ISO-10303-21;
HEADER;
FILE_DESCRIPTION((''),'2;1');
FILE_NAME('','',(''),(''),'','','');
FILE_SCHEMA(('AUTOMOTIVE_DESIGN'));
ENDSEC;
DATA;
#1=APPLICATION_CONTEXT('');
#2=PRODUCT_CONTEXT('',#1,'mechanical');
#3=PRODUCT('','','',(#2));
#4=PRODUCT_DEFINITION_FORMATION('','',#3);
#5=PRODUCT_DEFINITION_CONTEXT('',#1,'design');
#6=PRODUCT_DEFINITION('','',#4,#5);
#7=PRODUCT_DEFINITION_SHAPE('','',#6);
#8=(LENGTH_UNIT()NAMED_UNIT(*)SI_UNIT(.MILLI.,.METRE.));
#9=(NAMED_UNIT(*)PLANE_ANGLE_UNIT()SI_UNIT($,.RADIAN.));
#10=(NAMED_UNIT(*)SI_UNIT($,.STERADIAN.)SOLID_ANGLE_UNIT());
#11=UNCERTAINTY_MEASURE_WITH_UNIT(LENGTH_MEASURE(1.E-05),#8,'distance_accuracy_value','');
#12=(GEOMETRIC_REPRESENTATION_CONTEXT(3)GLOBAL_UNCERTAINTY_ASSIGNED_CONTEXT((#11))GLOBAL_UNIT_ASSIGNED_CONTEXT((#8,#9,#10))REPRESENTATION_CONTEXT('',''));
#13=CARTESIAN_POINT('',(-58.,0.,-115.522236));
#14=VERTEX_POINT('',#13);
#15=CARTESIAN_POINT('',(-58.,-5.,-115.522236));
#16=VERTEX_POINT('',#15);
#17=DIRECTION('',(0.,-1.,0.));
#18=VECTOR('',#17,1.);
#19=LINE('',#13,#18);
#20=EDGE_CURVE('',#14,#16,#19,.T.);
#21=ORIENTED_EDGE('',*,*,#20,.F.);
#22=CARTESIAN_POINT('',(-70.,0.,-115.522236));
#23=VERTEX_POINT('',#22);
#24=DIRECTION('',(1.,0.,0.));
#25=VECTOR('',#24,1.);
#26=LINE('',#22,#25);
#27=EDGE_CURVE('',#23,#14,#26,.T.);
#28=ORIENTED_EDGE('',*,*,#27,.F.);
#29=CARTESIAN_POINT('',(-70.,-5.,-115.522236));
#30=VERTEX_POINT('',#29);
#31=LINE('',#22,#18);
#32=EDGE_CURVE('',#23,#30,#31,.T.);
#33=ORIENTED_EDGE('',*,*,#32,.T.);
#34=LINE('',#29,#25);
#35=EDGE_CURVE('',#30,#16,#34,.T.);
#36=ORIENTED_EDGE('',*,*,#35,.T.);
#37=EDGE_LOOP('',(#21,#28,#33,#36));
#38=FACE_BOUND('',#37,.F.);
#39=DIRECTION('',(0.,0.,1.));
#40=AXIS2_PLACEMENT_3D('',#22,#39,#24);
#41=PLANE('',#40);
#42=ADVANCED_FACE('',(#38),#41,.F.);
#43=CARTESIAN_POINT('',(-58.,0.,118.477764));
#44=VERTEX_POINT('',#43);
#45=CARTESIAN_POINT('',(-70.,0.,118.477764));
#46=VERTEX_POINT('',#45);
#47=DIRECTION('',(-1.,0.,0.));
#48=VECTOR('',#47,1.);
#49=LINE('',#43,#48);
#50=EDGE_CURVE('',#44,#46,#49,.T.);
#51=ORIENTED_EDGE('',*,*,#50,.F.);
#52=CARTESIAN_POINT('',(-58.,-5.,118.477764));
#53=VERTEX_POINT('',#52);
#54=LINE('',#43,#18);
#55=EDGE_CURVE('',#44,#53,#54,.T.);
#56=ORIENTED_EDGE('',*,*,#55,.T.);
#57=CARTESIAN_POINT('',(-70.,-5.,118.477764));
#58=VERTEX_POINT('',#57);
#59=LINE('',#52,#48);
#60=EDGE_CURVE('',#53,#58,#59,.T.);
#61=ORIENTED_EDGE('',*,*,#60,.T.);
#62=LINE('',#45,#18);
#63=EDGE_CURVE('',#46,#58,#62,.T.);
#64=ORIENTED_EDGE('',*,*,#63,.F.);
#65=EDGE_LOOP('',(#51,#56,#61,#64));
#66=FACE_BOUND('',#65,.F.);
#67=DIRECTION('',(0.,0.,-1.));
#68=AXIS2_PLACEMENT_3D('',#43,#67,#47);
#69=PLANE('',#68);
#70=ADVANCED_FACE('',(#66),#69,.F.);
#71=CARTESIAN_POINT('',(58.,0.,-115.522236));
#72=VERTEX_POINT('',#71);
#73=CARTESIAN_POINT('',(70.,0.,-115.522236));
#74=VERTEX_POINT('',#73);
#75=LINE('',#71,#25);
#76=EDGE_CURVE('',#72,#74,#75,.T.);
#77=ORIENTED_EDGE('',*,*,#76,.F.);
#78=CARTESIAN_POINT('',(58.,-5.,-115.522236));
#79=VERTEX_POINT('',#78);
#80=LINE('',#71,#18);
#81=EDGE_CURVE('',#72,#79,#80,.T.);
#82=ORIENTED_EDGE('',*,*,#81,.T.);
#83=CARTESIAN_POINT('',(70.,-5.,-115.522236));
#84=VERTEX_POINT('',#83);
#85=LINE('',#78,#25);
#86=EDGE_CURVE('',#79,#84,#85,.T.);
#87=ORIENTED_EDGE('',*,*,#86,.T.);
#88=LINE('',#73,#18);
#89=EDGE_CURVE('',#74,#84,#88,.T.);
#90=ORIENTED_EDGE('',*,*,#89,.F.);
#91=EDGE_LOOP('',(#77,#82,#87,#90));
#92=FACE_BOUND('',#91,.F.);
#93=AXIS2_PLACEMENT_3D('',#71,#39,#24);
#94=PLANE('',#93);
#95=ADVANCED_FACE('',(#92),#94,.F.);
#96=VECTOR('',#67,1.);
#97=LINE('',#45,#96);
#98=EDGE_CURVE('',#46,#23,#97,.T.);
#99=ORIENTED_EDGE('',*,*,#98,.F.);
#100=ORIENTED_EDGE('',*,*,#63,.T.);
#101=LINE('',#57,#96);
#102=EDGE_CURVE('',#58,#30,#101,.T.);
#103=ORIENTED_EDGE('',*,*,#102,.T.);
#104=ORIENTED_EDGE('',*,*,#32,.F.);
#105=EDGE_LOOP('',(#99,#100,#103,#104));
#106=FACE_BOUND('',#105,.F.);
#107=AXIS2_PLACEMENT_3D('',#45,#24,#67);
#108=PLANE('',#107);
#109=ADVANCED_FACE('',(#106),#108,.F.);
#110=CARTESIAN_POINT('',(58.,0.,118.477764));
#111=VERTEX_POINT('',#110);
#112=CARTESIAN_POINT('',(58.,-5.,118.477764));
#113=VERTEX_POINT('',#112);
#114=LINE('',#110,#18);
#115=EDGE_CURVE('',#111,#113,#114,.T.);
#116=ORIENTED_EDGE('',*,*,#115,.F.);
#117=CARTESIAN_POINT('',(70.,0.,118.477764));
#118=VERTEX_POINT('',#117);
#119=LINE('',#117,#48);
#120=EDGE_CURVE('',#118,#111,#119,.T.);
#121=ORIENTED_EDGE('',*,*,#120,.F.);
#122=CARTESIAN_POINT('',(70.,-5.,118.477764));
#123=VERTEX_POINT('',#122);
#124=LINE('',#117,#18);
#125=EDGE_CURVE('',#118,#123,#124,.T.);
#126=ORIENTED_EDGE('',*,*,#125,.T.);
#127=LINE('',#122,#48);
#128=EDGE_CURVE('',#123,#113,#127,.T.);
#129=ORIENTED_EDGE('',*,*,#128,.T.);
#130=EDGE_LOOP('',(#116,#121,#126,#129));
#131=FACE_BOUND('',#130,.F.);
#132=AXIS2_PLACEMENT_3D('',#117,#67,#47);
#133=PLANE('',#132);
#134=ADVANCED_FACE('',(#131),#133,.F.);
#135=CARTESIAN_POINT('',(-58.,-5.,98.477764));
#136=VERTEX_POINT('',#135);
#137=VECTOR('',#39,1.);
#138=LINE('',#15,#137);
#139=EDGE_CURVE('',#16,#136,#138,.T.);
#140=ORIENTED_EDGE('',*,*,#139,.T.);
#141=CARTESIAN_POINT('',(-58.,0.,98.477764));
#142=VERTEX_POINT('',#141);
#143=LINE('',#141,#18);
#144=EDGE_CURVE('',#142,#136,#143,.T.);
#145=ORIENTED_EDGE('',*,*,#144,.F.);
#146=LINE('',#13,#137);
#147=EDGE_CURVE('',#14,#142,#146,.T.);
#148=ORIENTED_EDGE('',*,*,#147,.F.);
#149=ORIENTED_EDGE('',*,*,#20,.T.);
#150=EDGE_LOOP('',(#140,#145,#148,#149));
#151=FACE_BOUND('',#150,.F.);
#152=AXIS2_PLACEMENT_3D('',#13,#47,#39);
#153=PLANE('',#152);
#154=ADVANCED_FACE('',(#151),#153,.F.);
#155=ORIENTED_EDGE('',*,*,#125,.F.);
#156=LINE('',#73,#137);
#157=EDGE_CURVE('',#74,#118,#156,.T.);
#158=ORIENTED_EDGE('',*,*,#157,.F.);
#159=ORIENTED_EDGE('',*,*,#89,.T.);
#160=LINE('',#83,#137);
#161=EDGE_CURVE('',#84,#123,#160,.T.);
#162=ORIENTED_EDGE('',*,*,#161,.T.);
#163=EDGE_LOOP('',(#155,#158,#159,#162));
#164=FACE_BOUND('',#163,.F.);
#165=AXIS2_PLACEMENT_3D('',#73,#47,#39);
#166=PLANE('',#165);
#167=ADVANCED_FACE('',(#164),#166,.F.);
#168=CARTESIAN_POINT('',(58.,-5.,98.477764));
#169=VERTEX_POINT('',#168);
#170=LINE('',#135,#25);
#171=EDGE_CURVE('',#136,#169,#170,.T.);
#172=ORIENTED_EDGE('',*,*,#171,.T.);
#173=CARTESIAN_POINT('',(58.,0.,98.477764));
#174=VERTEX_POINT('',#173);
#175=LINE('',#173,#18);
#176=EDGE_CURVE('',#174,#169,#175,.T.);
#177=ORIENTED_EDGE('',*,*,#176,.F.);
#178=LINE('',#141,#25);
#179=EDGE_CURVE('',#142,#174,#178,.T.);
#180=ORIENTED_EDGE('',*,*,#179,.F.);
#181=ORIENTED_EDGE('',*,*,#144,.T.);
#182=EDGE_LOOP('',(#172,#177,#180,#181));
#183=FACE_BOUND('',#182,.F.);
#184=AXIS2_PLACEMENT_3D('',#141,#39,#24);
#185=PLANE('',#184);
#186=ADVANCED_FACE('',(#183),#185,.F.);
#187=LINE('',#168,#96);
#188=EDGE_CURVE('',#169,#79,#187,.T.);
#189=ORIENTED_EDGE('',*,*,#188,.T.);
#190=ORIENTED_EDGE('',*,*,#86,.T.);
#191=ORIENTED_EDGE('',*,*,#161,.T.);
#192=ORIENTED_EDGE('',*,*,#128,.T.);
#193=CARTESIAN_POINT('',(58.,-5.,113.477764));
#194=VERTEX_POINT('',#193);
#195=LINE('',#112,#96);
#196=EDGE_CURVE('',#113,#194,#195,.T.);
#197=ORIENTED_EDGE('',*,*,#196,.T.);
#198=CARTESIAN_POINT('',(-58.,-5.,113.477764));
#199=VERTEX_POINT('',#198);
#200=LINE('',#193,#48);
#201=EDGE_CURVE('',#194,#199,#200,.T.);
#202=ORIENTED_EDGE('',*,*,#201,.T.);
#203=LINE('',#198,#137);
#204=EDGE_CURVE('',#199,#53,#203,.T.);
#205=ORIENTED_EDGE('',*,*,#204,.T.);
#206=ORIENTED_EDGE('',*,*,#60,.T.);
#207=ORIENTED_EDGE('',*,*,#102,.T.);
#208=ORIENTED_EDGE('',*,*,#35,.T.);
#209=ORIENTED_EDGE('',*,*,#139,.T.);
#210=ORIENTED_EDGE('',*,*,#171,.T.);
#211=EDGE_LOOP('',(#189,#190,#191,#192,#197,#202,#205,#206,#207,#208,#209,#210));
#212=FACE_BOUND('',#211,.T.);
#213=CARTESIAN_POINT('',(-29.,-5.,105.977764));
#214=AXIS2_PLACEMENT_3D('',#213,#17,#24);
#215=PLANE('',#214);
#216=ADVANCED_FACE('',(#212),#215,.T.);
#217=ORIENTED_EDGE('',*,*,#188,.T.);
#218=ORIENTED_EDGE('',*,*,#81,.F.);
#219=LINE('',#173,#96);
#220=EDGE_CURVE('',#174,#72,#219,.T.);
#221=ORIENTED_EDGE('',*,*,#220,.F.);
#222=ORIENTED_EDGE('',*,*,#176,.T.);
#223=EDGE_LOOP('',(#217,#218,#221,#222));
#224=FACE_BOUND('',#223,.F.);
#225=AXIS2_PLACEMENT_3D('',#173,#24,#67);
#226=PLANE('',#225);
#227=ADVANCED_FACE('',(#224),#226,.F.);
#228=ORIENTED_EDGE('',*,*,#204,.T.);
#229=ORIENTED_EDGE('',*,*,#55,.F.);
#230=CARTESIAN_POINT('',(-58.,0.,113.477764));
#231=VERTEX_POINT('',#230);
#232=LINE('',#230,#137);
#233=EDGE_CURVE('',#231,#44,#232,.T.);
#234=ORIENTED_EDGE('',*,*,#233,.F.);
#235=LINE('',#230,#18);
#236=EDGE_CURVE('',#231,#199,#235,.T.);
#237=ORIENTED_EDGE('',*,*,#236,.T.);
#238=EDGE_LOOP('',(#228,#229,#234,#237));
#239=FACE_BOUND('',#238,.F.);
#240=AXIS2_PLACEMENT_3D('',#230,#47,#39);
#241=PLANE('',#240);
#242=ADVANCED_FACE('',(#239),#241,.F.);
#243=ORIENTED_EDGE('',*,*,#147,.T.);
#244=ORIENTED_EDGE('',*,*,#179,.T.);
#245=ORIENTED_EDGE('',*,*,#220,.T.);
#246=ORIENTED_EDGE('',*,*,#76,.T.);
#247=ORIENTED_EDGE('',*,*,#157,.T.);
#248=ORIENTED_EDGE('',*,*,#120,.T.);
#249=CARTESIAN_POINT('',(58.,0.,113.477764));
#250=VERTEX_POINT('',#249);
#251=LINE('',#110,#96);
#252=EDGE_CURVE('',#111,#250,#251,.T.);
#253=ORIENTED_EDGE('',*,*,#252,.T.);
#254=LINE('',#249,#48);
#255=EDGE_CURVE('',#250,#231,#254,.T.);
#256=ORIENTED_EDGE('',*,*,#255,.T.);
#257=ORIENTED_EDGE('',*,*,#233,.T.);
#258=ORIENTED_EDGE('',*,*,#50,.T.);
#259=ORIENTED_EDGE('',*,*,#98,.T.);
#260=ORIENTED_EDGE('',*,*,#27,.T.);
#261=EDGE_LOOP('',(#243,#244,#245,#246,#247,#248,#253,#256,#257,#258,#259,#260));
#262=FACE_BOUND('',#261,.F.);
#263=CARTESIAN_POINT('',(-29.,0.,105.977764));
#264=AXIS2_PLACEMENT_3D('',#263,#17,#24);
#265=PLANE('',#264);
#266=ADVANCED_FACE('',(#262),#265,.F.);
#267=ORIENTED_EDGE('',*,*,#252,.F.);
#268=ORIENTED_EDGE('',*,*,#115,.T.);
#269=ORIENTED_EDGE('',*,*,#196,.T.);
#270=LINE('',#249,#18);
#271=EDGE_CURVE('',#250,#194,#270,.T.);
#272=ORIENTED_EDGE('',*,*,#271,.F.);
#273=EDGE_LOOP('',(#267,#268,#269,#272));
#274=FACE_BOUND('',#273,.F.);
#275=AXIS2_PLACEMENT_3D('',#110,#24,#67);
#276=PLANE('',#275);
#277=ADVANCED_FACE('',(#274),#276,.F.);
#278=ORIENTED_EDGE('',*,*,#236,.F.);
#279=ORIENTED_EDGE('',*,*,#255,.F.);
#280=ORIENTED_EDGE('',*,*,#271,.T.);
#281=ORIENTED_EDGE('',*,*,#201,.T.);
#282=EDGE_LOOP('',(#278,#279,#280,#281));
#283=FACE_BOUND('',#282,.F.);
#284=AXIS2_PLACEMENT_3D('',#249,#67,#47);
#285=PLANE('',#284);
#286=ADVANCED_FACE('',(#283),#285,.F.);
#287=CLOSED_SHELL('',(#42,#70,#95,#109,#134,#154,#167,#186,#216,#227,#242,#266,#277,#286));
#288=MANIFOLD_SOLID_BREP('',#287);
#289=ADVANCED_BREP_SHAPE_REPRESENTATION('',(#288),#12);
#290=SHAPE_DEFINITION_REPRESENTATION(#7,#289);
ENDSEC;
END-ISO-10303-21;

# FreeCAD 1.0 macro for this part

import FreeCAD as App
import Part
import Sketcher

V = App.Vector
Q = App.Units.Quantity

doc = App.newDocument("Part")
params = doc.addObject("Spreadsheet::Sheet", "Params")
for row, (alias, value) in enumerate([
    ("sketch1_width", "116 mm"),
    ("sketch1_width2", "12 mm"),
    ("sketch1_height", "214 mm"),
    ("sketch1_height2", "234 mm"),
    ("sketch1_height3", "5 mm"),
    ("pad1_length", "5 mm"),
], start=1):
    params.set(f"A{row}", alias)
    params.set(f"B{row}", "=" + value)
    params.setAlias(f"B{row}", alias)

body = doc.addObject("PartDesign::Body", "Body")

sketch1 = body.newObject("Sketcher::SketchObject", "Sketch")
sketch1.AttachmentSupport = (doc.getObject("XZ_Plane"), [""])
sketch1.MapMode = "FlatFace"
sketch1.addGeometry([
    Part.LineSegment(V(-58, 98, 0), V(58, 98, 0)),
    Part.LineSegment(V(58, 98, 0), V(58, -116, 0)),
    Part.LineSegment(V(58, -116, 0), V(70, -116, 0)),
    Part.LineSegment(V(70, -116, 0), V(70, 118, 0)),
    Part.LineSegment(V(70, 118, 0), V(58, 118, 0)),
    Part.LineSegment(V(58, 118, 0), V(58, 113, 0)),
    Part.LineSegment(V(58, 113, 0), V(-58, 113, 0)),
    Part.LineSegment(V(-58, 113, 0), V(-58, 118, 0)),
    Part.LineSegment(V(-58, 118, 0), V(-70, 118, 0)),
    Part.LineSegment(V(-70, 118, 0), V(-70, -116, 0)),
    Part.LineSegment(V(-70, -116, 0), V(-58, -116, 0)),
    Part.LineSegment(V(-58, -116, 0), V(-58, 98, 0)),
], False)
sketch1.addConstraint([
    Sketcher.Constraint("Coincident", 0, 2, 1, 1),
    Sketcher.Constraint("Coincident", 1, 2, 2, 1),
    Sketcher.Constraint("Coincident", 2, 2, 3, 1),
    Sketcher.Constraint("Coincident", 3, 2, 4, 1),
    Sketcher.Constraint("Coincident", 4, 2, 5, 1),
    Sketcher.Constraint("Coincident", 5, 2, 6, 1),
    Sketcher.Constraint("Coincident", 6, 2, 7, 1),
    Sketcher.Constraint("Coincident", 7, 2, 8, 1),
    Sketcher.Constraint("Coincident", 8, 2, 9, 1),
    Sketcher.Constraint("Coincident", 9, 2, 10, 1),
    Sketcher.Constraint("Coincident", 10, 2, 11, 1),
    Sketcher.Constraint("Coincident", 11, 2, 0, 1),
    Sketcher.Constraint("Horizontal", 0),
    Sketcher.Constraint("Vertical", 1),
    Sketcher.Constraint("Horizontal", 2),
    Sketcher.Constraint("Vertical", 3),
    Sketcher.Constraint("Horizontal", 4),
    Sketcher.Constraint("Vertical", 5),
    Sketcher.Constraint("Horizontal", 6),
    Sketcher.Constraint("Vertical", 7),
    Sketcher.Constraint("Horizontal", 8),
    Sketcher.Constraint("Vertical", 9),
    Sketcher.Constraint("Horizontal", 10),
    Sketcher.Constraint("Vertical", 11),
    Sketcher.Constraint("Symmetric", 4, 2, 7, 2, -2),
    Sketcher.Constraint("Symmetric", 2, 2, 9, 2, -2),
    Sketcher.Constraint("Vertical", 1, 2, 4, 2),
    Sketcher.Constraint("Vertical", 7, 2, 10, 2),
    Sketcher.Constraint("DistanceX", 0, 1, 0, 2, Q("116 mm")),
    Sketcher.Constraint("DistanceX", 2, 1, 2, 2, Q("12 mm")),
    Sketcher.Constraint("DistanceY", 1, 2, 1, 1, Q("214 mm")),
    Sketcher.Constraint("DistanceY", 3, 1, 3, 2, Q("234 mm")),
    Sketcher.Constraint("DistanceY", 5, 2, 5, 1, Q("5 mm")),
    Sketcher.Constraint("DistanceY", -1, 1, 0, 2, Q("98.477764 mm")),
])
sketch1.setExpression("Constraints[28]", "Params.sketch1_width")
sketch1.setExpression("Constraints[29]", "Params.sketch1_width2")
sketch1.setExpression("Constraints[30]", "Params.sketch1_height")
sketch1.setExpression("Constraints[31]", "Params.sketch1_height2")
sketch1.setExpression("Constraints[32]", "Params.sketch1_height3")
pad1 = body.newObject("PartDesign::Pad", "Pad")
pad1.Profile = sketch1
pad1.setExpression("Length", "Params.pad1_length")

doc.recompute()
